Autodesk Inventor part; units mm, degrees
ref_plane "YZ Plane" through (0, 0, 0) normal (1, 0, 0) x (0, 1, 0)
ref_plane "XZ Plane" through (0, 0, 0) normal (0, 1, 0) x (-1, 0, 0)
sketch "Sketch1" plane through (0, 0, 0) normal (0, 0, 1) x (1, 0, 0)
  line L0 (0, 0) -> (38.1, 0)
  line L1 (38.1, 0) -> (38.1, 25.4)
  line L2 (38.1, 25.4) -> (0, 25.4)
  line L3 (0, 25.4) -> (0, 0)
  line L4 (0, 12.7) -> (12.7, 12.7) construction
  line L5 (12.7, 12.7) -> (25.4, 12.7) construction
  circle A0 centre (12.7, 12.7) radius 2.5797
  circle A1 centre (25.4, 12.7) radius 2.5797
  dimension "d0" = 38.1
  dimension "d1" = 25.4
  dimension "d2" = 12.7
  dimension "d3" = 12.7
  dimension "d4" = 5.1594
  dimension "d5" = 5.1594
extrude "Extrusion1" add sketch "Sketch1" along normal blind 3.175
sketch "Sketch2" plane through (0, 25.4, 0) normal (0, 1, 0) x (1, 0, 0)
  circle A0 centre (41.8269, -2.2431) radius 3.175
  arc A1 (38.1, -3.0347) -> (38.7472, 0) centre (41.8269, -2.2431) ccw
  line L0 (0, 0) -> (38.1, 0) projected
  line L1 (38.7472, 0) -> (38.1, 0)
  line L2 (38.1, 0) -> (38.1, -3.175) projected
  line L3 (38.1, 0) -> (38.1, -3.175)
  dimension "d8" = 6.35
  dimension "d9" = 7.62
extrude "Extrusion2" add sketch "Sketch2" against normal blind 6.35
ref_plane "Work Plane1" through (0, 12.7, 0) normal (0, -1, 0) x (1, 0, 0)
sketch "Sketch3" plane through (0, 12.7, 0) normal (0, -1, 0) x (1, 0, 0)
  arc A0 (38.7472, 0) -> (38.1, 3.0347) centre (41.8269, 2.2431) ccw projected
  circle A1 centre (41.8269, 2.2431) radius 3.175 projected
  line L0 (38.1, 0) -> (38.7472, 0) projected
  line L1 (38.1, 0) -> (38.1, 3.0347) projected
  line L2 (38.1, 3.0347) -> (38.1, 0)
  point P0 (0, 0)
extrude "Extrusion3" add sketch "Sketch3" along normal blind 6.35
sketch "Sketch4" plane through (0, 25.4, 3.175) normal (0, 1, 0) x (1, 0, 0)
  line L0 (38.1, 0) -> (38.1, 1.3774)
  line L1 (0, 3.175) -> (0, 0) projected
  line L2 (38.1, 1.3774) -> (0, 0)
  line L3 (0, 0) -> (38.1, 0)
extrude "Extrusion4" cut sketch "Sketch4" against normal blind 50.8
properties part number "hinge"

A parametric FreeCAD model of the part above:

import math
import FreeCAD as App
import Part
import Sketcher

V = App.Vector
Q = App.Units.Quantity

doc = App.newDocument("Part")
body = doc.addObject("PartDesign::Body", "Body")

# Sketch on XY plane
sketch1 = body.newObject("Sketcher::SketchObject", "Sketch")
sketch1.AttachmentSupport = (doc.getObject("XY_Plane"), [""])
sketch1.MapMode = "FlatFace"
sketch1.addGeometry(Part.LineSegment(V(0, 25.4, 0), V(0, 0, 0)), False)
sketch1.addGeometry(Part.LineSegment(V(0, 0, 0), V(38.1, 0, 0)), False)
sketch1.addGeometry(Part.LineSegment(V(38.1, 0, 0), V(38.1, 25.4, 0)), False)
sketch1.addGeometry(Part.LineSegment(V(38.1, 25.4, 0), V(0, 25.4, 0)), False)
sketch1.addGeometry(Part.Circle(V(12.7, 12.7, 0), V(0, 0, 1), 2.5797), False)
sketch1.addGeometry(Part.Circle(V(25.4, 12.7, 0), V(0, 0, 1), 2.5797), False)
sketch1.addConstraint(Sketcher.Constraint("Coincident", 0, 2, 1, 1))
sketch1.addConstraint(Sketcher.Constraint("Coincident", 1, 2, 2, 1))
sketch1.addConstraint(Sketcher.Constraint("Coincident", 2, 2, 3, 1))
sketch1.addConstraint(Sketcher.Constraint("Coincident", 3, 2, 0, 1))
sketch1.addConstraint(Sketcher.Constraint("Vertical", 0))
sketch1.addConstraint(Sketcher.Constraint("Horizontal", 1))
sketch1.addConstraint(Sketcher.Constraint("Vertical", 2))
sketch1.addConstraint(Sketcher.Constraint("Horizontal", 3))
sketch1.addConstraint(Sketcher.Constraint("Coincident", 0, 2, -1, 1))
sketch1.addConstraint(Sketcher.Constraint("Equal", 4, 5))
sketch1.addConstraint(Sketcher.Constraint("Horizontal", 4, 3, 5, 3))
sketch1.addConstraint(Sketcher.Constraint("DistanceY", 0, 2, 0, 1, Q("1 in")))
sketch1.addConstraint(Sketcher.Constraint("Diameter", 4, Q("0.203126 in")))
sketch1.addConstraint(Sketcher.Constraint("DistanceX", 1, 1, 1, 2, Q("1.5 in")))
sketch1.addConstraint(Sketcher.Constraint("DistanceX", -1, 1, 5, 3, Q("1 in")))
sketch1.addConstraint(Sketcher.Constraint("DistanceX", 4, 3, 1, 2, Q("1 in")))
sketch1.addConstraint(Sketcher.Constraint("DistanceY", -1, 1, 4, 3, Q("0.5 in")))
pad1 = body.newObject("PartDesign::Pad", "Pad")
pad1.Profile = sketch1
pad1.Length = Q("0.125 in")

# Sketch on XZ plane
sketch2 = body.newObject("Sketcher::SketchObject", "Sketch001")
sketch2.AttachmentSupport = (doc.getObject("XZ_Plane"), [""])
sketch2.MapMode = "FlatFace"
sketch2.AttachmentOffset = App.Placement(V(0, 0, -1 * 25.4), App.Rotation())
sketch2.addGeometry(Part.LineSegment(V(38.1, 0, 0), V(38.1, 3.0347, 0)), False)
sketch2.addGeometry(Part.ArcOfCircle(Part.Circle(V(41.8269, 2.2431, 0), V(0, 0, 1), 3.810041), math.radians(-143.932271), math.radians(168.008488)), False)
sketch2.addGeometry(Part.LineSegment(V(38.7472, 0, 0), V(38.1, 0, 0)), False)
sketch2.addGeometry(Part.Circle(V(41.8269, 2.2431, 0), V(0, 0, 1), 3.175), False)
sketch2.addConstraint(Sketcher.Constraint("Coincident", 0, 2, 1, 2))
sketch2.addConstraint(Sketcher.Constraint("Coincident", 1, 1, 2, 1))
sketch2.addConstraint(Sketcher.Constraint("Coincident", 2, 2, 0, 1))
sketch2.addConstraint(Sketcher.Constraint("Vertical", 0))
sketch2.addConstraint(Sketcher.Constraint("Horizontal", 2))
sketch2.addConstraint(Sketcher.Constraint("Coincident", 3, 3, 1, 3))
sketch2.addConstraint(Sketcher.Constraint("PointOnObject", 1, 1, -1))
sketch2.addConstraint(Sketcher.Constraint("Diameter", 3, Q("0.25 in")))
sketch2.addConstraint(Sketcher.Constraint("Radius", 1, Q("0.15 in")))
sketch2.addConstraint(Sketcher.Constraint("DistanceX", -1, 1, 0, 2, Q("1.5 in")))
sketch2.addConstraint(Sketcher.Constraint("DistanceX", 2, 2, 2, 1, 0.6472))
sketch2.addConstraint(Sketcher.Constraint("DistanceY", 0, 1, 0, 2, 3.0347))
pad2 = body.newObject("PartDesign::Pad", "Pad001")
pad2.Profile = sketch2
pad2.Length = Q("0.25 in")

# Sketch on XZ plane
sketch3 = body.newObject("Sketcher::SketchObject", "Sketch002")
sketch3.AttachmentSupport = (doc.getObject("XZ_Plane"), [""])
sketch3.MapMode = "FlatFace"
sketch3.AttachmentOffset = App.Placement(V(0, 0, -0.5 * 25.4), App.Rotation())
sketch3.addGeometry(Part.LineSegment(V(38.1, 0, 0), V(38.7472, 0, 0)), False)
sketch3.addGeometry(Part.ArcOfCircle(Part.Circle(V(41.8269, 2.2431, 0), V(0, 0, 1), 3.809993), math.radians(-143.932271), math.radians(168.008488)), False)
sketch3.addGeometry(Part.LineSegment(V(38.1, 3.0347, 0), V(38.1, 0, 0)), False)
sketch3.addGeometry(Part.Circle(V(41.8269, 2.2431, 0), V(0, 0, 1), 3.175), False)
sketch3.addConstraint(Sketcher.Constraint("Coincident", 0, 2, 1, 1))
sketch3.addConstraint(Sketcher.Constraint("Coincident", 1, 2, 2, 1))
sketch3.addConstraint(Sketcher.Constraint("Coincident", 2, 2, 0, 1))
sketch3.addConstraint(Sketcher.Constraint("Horizontal", 0))
sketch3.addConstraint(Sketcher.Constraint("Vertical", 2))
sketch3.addConstraint(Sketcher.Constraint("Coincident", 3, 3, 1, 3))
sketch3.addConstraint(Sketcher.Constraint("PointOnObject", 0, 2, -1))
sketch3.addConstraint(Sketcher.Constraint("Diameter", 3, Q("0.25 in")))
sketch3.addConstraint(Sketcher.Constraint("Radius", 1, Q("0.15 in")))
sketch3.addConstraint(Sketcher.Constraint("DistanceX", -1, 1, 1, 2, Q("1.5 in")))
sketch3.addConstraint(Sketcher.Constraint("DistanceX", 0, 1, 0, 2, 0.6472))
sketch3.addConstraint(Sketcher.Constraint("DistanceY", 2, 2, 2, 1, 3.0347))
pad3 = body.newObject("PartDesign::Pad", "Pad002")
pad3.Profile = sketch3
pad3.Length = Q("0.25 in")

# Sketch on XZ plane
sketch4 = body.newObject("Sketcher::SketchObject", "Sketch003")
sketch4.AttachmentSupport = (doc.getObject("XZ_Plane"), [""])
sketch4.MapMode = "FlatFace"
sketch4.AttachmentOffset = App.Placement(V(0, 0, -1 * 25.4), App.Rotation())
sketch4.addGeometry(Part.LineSegment(V(0, 3.175, 0), V(38.1, 3.175, 0)), False)
sketch4.addGeometry(Part.LineSegment(V(38.1, 3.175, 0), V(38.1, 1.7976, 0)), False)
sketch4.addGeometry(Part.LineSegment(V(38.1, 1.7976, 0), V(0, 3.175, 0)), False)
sketch4.addConstraint(Sketcher.Constraint("Coincident", 0, 2, 1, 1))
sketch4.addConstraint(Sketcher.Constraint("Coincident", 1, 2, 2, 1))
sketch4.addConstraint(Sketcher.Constraint("Coincident", 2, 2, 0, 1))
sketch4.addConstraint(Sketcher.Constraint("Horizontal", 0))
sketch4.addConstraint(Sketcher.Constraint("Vertical", 1))
sketch4.addConstraint(Sketcher.Constraint("PointOnObject", 2, 2, -2))
sketch4.addConstraint(Sketcher.Constraint("DistanceX", 0, 1, 0, 2, Q("1.5 in")))
sketch4.addConstraint(Sketcher.Constraint("Angle", 2, Q("177.9295 deg")))
sketch4.addConstraint(Sketcher.Constraint("DistanceY", -1, 1, 0, 2, Q("0.125 in")))
pocket1 = body.newObject("PartDesign::Pocket", "Pocket")
pocket1.Profile = sketch4
pocket1.Length = Q("2 in")
pocket1.Reversed = True

doc.recompute()
